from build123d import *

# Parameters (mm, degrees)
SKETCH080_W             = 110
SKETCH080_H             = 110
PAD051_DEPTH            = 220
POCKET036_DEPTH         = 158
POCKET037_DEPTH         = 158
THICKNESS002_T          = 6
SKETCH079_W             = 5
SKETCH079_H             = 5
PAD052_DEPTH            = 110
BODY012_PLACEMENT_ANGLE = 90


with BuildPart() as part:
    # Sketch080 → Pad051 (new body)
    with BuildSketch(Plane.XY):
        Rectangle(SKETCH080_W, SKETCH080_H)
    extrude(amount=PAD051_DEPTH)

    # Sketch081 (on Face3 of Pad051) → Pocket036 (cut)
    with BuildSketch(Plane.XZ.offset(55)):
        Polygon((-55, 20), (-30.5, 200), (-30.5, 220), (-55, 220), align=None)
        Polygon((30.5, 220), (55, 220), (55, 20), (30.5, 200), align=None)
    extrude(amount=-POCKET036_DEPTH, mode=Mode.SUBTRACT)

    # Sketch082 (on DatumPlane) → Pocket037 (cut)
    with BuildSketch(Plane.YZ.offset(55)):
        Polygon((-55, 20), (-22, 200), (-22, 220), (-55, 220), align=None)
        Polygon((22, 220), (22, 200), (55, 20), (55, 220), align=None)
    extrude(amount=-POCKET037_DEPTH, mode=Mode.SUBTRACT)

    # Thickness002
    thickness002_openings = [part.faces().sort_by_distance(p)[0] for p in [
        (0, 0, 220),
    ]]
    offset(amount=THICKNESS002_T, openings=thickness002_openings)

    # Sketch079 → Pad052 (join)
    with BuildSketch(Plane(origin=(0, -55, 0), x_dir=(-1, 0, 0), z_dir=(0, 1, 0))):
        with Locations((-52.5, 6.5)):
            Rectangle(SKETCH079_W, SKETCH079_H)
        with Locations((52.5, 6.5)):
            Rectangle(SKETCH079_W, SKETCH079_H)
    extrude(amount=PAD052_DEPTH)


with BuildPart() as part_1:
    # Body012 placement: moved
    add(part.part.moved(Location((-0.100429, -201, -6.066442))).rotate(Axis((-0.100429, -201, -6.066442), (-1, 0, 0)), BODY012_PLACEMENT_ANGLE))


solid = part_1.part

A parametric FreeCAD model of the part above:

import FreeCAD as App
import Part
import Sketcher
Q = App.Units.Quantity


def faces_at(feature, points):
    """Names of the faces that lie closest to the given points."""
    faces = feature.Shape.Faces
    near = lambda p: min(range(len(faces)), key=lambda i: faces[i].distToShape(Part.Vertex(*p))[0])
    return sorted({f"Face{near(p) + 1}" for p in points})

doc = App.newDocument("Part")
body = doc.addObject("PartDesign::Body", "Body")

sketch1 = doc.addObject("Sketcher::SketchObject", "Sketch")
body.addObject(sketch1)
sketch1.AttachmentSupport = (doc.XY_Plane, [""])
sketch1.MapMode = "FlatFace"
sketch1.addGeometry([
    Part.LineSegment(App.Vector(-55, 55, 0), App.Vector(-55, -55, 0)),
    Part.LineSegment(App.Vector(-55, -55, 0), App.Vector(55, -55, 0)),
    Part.LineSegment(App.Vector(55, -55, 0), App.Vector(55, 55, 0)),
    Part.LineSegment(App.Vector(55, 55, 0), App.Vector(-55, 55, 0)),
], False)
sketch1.addConstraint([
    Sketcher.Constraint("Coincident", 0, 2, 1, 1),
    Sketcher.Constraint("Coincident", 1, 2, 2, 1),
    Sketcher.Constraint("Coincident", 2, 2, 3, 1),
    Sketcher.Constraint("Coincident", 3, 2, 0, 1),
    Sketcher.Constraint("Vertical", 0),
    Sketcher.Constraint("Horizontal", 1),
    Sketcher.Constraint("Vertical", 2),
    Sketcher.Constraint("Horizontal", 3),
    Sketcher.Constraint("Symmetric", 0, 2, 2, 2, -1, 1),
    Sketcher.Constraint("Equal", 3, 0),
    Sketcher.Constraint("DistanceX", 1, 1, 1, 2, Q("110 mm")),
])
pad1 = doc.addObject("PartDesign::Pad", "Pad")
body.addObject(pad1)
pad1.Profile = sketch1
pad1.Length = 220

sketch2 = doc.addObject("Sketcher::SketchObject", "Sketch001")
body.addObject(sketch2)
sketch2.AttachmentSupport = (doc.XZ_Plane, [""])
sketch2.MapMode = "FlatFace"
sketch2.AttachmentOffset = App.Placement(App.Vector(0, 0, 55), App.Rotation())
sketch2.addGeometry([
    Part.LineSegment(App.Vector(-55, 20, 0), App.Vector(-30, 200, 0)),
    Part.LineSegment(App.Vector(-30, 200, 0), App.Vector(-30, 220, 0)),
    Part.LineSegment(App.Vector(-30, 220, 0), App.Vector(-55, 220, 0)),
    Part.LineSegment(App.Vector(-55, 220, 0), App.Vector(-55, 20, 0)),
    Part.LineSegment(App.Vector(55, 220, 0), App.Vector(30, 220, 0)),
    Part.LineSegment(App.Vector(30, 220, 0), App.Vector(30, 200, 0)),
    Part.LineSegment(App.Vector(30, 200, 0), App.Vector(55, 20, 0)),
    Part.LineSegment(App.Vector(55, 20, 0), App.Vector(55, 220, 0)),
], False)
sketch2.addConstraint([
    Sketcher.Constraint("Coincident", 0, 2, 1, 1),
    Sketcher.Constraint("Coincident", 1, 2, 2, 1),
    Sketcher.Constraint("Coincident", 2, 2, 3, 1),
    Sketcher.Constraint("Coincident", 3, 2, 0, 1),
    Sketcher.Constraint("Coincident", 4, 2, 5, 1),
    Sketcher.Constraint("Coincident", 5, 2, 6, 1),
    Sketcher.Constraint("Coincident", 6, 2, 7, 1),
    Sketcher.Constraint("Coincident", 7, 2, 4, 1),
    Sketcher.Constraint("Vertical", 1),
    Sketcher.Constraint("Horizontal", 2),
    Sketcher.Constraint("Vertical", 3),
    Sketcher.Constraint("Horizontal", 4),
    Sketcher.Constraint("Vertical", 5),
    Sketcher.Constraint("Vertical", 7),
    Sketcher.Constraint("Symmetric", 1, 2, 4, 2, -2),
    Sketcher.Constraint("Symmetric", 3, 2, 6, 2, -2),
    Sketcher.Constraint("Horizontal", 0, 2, 5, 2),
    Sketcher.Constraint("DistanceY", 1, 1, 1, 2, Q("20 mm")),
    Sketcher.Constraint("DistanceY", 3, 2, 3, 1, Q("200 mm")),
    Sketcher.Constraint("DistanceX", 2, 2, 2, 1, Q("24.5 mm")),
    Sketcher.Constraint("DistanceY", -1, 1, 0, 2, Q("200 mm")),
    Sketcher.Constraint("DistanceX", 2, 2, -1, 1, Q("55 mm")),
])
pocket1 = doc.addObject("PartDesign::Pocket", "Pocket")
body.addObject(pocket1)
pocket1.Profile = sketch2
pocket1.Length = 158

sketch3 = doc.addObject("Sketcher::SketchObject", "Sketch002")
body.addObject(sketch3)
sketch3.AttachmentSupport = (doc.YZ_Plane, [""])
sketch3.MapMode = "FlatFace"
sketch3.AttachmentOffset = App.Placement(App.Vector(0, 0, 55), App.Rotation())
sketch3.addGeometry([
    Part.LineSegment(App.Vector(-55, 20, 0), App.Vector(-22, 200, 0)),
    Part.LineSegment(App.Vector(-22, 200, 0), App.Vector(-22, 220, 0)),
    Part.LineSegment(App.Vector(-22, 220, 0), App.Vector(-55, 220, 0)),
    Part.LineSegment(App.Vector(-55, 220, 0), App.Vector(-55, 20, 0)),
    Part.LineSegment(App.Vector(22, 220, 0), App.Vector(22, 200, 0)),
    Part.LineSegment(App.Vector(22, 200, 0), App.Vector(55, 20, 0)),
    Part.LineSegment(App.Vector(55, 20, 0), App.Vector(55, 220, 0)),
    Part.LineSegment(App.Vector(55, 220, 0), App.Vector(22, 220, 0)),
], False)
sketch3.addConstraint([
    Sketcher.Constraint("Coincident", 0, 2, 1, 1),
    Sketcher.Constraint("Coincident", 1, 2, 2, 1),
    Sketcher.Constraint("Coincident", 2, 2, 3, 1),
    Sketcher.Constraint("Coincident", 3, 2, 0, 1),
    Sketcher.Constraint("Coincident", 4, 2, 5, 1),
    Sketcher.Constraint("Coincident", 5, 2, 6, 1),
    Sketcher.Constraint("Coincident", 6, 2, 7, 1),
    Sketcher.Constraint("Coincident", 7, 2, 4, 1),
    Sketcher.Constraint("Vertical", 1),
    Sketcher.Constraint("Horizontal", 2),
    Sketcher.Constraint("Vertical", 3),
    Sketcher.Constraint("Vertical", 4),
    Sketcher.Constraint("Vertical", 6),
    Sketcher.Constraint("Horizontal", 7),
    Sketcher.Constraint("Symmetric", 0, 2, 4, 2, -2),
    Sketcher.Constraint("Symmetric", 3, 2, 5, 2, -2),
    Sketcher.Constraint("Horizontal", 2, 2, 6, 2),
    Sketcher.Constraint("DistanceX", 2, 2, 2, 1, Q("33 mm")),
    Sketcher.Constraint("DistanceY", 1, 1, 1, 2, Q("20 mm")),
    Sketcher.Constraint("DistanceY", 3, 2, 3, 1, Q("200 mm")),
    Sketcher.Constraint("DistanceX", 0, 2, -1, 1, Q("22 mm")),
    Sketcher.Constraint("DistanceY", -1, 1, 0, 2, Q("200 mm")),
])
pocket2 = doc.addObject("PartDesign::Pocket", "Pocket001")
body.addObject(pocket2)
pocket2.Profile = sketch3
pocket2.Length = 158
doc.recompute()

thickness = doc.addObject("PartDesign::Thickness", "Thickness")
body.addObject(thickness)
thickness.Base = (pocket2, faces_at(pocket2, [(0, 0, 220)]))
thickness.Value = 6
thickness.Reversed = False
thickness.Join = "Arc"

sketch4 = doc.addObject("Sketcher::SketchObject", "Sketch003")
body.addObject(sketch4)
sketch4.AttachmentSupport = (doc.XZ_Plane, [""])
sketch4.MapMode = "FlatFace"
sketch4.AttachmentOffset = App.Placement(App.Vector(0, 0, 55), App.Rotation())
sketch4.addGeometry([
    Part.LineSegment(App.Vector(55, 9, 0), App.Vector(55, 4, 0)),
    Part.LineSegment(App.Vector(55, 4, 0), App.Vector(50, 4, 0)),
    Part.LineSegment(App.Vector(50, 4, 0), App.Vector(50, 9, 0)),
    Part.LineSegment(App.Vector(50, 9, 0), App.Vector(55, 9, 0)),
    Part.LineSegment(App.Vector(-50, 9, 0), App.Vector(-50, 4, 0)),
    Part.LineSegment(App.Vector(-50, 4, 0), App.Vector(-55, 4, 0)),
    Part.LineSegment(App.Vector(-55, 4, 0), App.Vector(-55, 9, 0)),
    Part.LineSegment(App.Vector(-55, 9, 0), App.Vector(-50, 9, 0)),
], False)
sketch4.addConstraint([
    Sketcher.Constraint("Coincident", 0, 2, 1, 1),
    Sketcher.Constraint("Coincident", 1, 2, 2, 1),
    Sketcher.Constraint("Coincident", 2, 2, 3, 1),
    Sketcher.Constraint("Coincident", 3, 2, 0, 1),
    Sketcher.Constraint("Coincident", 4, 2, 5, 1),
    Sketcher.Constraint("Coincident", 5, 2, 6, 1),
    Sketcher.Constraint("Coincident", 6, 2, 7, 1),
    Sketcher.Constraint("Coincident", 7, 2, 4, 1),
    Sketcher.Constraint("Vertical", 0),
    Sketcher.Constraint("Horizontal", 1),
    Sketcher.Constraint("Vertical", 2),
    Sketcher.Constraint("Horizontal", 3),
    Sketcher.Constraint("Vertical", 4),
    Sketcher.Constraint("Horizontal", 5),
    Sketcher.Constraint("Vertical", 6),
    Sketcher.Constraint("Horizontal", 7),
    Sketcher.Constraint("Symmetric", 1, 2, 4, 2, -2),
    Sketcher.Constraint("Symmetric", 3, 2, 6, 2, -2),
    Sketcher.Constraint("Equal", 7, 0),
    Sketcher.Constraint("DistanceX", 1, 2, 1, 1, Q("5 mm")),
    Sketcher.Constraint("DistanceX", -1, 1, 0, 2, Q("55 mm")),
    Sketcher.Constraint("DistanceY", -1, 1, 0, 2, Q("4 mm")),
])
pad2 = doc.addObject("PartDesign::Pad", "Pad001")
body.addObject(pad2)
pad2.Profile = sketch4
pad2.Length = 110
pad2.Reversed = True
body2 = doc.addObject("PartDesign::Body", "Body001")
doc.recompute()

body.Placement = App.Placement(App.Vector(-0.100429, -201, -6.066442), App.Rotation(App.Vector(-1, 0, 0), 90))
boolean = doc.addObject("PartDesign::Boolean", "Boolean")
body2.addObject(boolean)
boolean.Type = "Fuse"
boolean.addObjects([body])

doc.recompute()
